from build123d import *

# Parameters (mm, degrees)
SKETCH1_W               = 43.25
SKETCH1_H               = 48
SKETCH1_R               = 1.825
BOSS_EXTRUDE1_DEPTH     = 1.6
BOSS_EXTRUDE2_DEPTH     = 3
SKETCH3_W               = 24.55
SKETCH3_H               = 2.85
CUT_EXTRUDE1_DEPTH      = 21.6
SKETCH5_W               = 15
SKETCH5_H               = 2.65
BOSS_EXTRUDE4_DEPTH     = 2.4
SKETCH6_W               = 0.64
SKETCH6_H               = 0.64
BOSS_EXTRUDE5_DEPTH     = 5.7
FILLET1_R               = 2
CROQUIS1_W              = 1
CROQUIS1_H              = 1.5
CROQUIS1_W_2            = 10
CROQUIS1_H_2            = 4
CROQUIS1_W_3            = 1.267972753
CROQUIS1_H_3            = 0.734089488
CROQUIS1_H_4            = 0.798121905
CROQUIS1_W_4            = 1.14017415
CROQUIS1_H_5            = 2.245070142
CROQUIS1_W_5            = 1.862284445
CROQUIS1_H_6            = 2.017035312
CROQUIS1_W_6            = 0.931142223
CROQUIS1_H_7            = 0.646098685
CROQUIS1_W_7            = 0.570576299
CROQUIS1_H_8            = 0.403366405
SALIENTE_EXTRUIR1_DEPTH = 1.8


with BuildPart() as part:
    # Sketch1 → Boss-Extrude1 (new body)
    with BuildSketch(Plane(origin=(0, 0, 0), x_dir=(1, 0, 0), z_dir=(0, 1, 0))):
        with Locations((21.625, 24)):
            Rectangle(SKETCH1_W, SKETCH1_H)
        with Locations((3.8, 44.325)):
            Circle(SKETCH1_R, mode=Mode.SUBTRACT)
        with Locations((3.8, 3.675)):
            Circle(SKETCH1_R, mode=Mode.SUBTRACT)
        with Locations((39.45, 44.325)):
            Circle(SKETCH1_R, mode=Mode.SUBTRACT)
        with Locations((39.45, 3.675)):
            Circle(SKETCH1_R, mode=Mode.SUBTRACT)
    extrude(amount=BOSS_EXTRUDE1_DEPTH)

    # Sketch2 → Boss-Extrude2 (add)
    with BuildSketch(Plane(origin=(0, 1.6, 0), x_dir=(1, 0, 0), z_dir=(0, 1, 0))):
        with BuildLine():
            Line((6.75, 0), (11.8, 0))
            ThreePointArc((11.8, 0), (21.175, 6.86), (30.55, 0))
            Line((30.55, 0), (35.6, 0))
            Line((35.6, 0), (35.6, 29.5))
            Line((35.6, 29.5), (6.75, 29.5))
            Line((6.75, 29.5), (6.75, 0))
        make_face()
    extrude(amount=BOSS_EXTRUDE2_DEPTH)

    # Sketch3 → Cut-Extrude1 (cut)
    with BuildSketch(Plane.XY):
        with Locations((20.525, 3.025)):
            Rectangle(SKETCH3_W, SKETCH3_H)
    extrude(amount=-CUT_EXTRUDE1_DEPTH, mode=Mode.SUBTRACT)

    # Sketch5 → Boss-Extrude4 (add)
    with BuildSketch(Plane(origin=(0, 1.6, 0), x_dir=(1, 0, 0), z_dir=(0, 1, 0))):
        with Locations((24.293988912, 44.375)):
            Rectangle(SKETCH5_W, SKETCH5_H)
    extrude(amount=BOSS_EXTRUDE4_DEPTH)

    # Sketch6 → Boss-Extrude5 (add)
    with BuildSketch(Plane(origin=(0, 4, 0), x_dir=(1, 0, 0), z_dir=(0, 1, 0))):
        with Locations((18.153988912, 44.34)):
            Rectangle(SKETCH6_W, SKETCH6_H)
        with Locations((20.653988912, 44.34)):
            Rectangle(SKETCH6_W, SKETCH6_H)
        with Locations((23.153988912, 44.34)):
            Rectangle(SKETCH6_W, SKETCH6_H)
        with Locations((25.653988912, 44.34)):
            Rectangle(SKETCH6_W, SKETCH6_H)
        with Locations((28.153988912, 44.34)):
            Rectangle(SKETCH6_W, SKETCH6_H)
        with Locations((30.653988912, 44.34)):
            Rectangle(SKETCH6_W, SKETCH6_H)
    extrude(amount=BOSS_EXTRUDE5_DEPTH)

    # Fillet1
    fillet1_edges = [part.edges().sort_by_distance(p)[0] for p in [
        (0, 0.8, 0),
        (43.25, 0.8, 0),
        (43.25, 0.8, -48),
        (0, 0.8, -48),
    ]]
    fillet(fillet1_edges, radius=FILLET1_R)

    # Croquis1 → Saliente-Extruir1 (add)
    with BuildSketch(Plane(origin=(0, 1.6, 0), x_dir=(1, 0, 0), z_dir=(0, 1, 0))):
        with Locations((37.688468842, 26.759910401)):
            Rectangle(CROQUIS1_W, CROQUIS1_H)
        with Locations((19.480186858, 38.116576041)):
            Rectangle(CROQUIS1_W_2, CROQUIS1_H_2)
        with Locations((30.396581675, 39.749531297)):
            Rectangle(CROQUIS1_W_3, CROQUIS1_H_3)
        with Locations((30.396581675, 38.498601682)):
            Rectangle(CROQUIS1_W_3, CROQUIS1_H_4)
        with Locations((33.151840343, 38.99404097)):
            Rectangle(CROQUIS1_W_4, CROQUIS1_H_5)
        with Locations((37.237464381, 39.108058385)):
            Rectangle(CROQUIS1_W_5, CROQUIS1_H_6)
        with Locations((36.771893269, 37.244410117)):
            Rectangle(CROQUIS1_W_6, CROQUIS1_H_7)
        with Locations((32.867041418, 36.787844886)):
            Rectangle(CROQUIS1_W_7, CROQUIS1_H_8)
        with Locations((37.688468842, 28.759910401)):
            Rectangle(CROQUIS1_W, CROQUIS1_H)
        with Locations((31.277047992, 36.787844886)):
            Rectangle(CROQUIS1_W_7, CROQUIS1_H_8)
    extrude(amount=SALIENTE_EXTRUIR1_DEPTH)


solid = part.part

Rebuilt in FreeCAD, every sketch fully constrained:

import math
import FreeCAD as App
import Part
import Sketcher

V = App.Vector


def edges_at(feature, points):
    """Names of the edges that pass closest to the given points."""
    edges = feature.Shape.Edges
    near = lambda p: min(range(len(edges)), key=lambda i: edges[i].distToShape(Part.Vertex(*p))[0])
    return sorted({f"Edge{near(p) + 1}" for p in points})


def add_polygon(sketch, points):
    """Adds a closed chain of lines whose ends are joined by coincident constraints."""
    first, n = sketch.GeometryCount, len(points)
    for a, b in zip(points, points[1:] + points[:1]):
        sketch.addGeometry(Part.LineSegment(App.Vector(*a, 0), App.Vector(*b, 0)), False)
    for i in range(n):
        sketch.addConstraint(Sketcher.Constraint("Coincident", first + i, 2, first + (i + 1) % n, 1))

doc = App.newDocument("Part")
body = doc.addObject("PartDesign::Body", "Body")

sketch1 = body.newObject("Sketcher::SketchObject", "Sketch")
sketch1.AttachmentSupport = (doc.getObject("XZ_Plane"), [""])
sketch1.MapMode = "FlatFace"
add_polygon(sketch1, [(0, -48), (0, 0), (43.25, 0), (43.25, -48)])
sketch1.addGeometry(Part.Circle(V(3.8, -3.675, 0), V(0, 0, 1), 1.825), False)
sketch1.addGeometry(Part.Circle(V(39.45, -3.675, 0), V(0, 0, 1), 1.825), False)
sketch1.addGeometry(Part.Circle(V(3.8, -44.325, 0), V(0, 0, 1), 1.825), False)
sketch1.addGeometry(Part.Circle(V(39.45, -44.325, 0), V(0, 0, 1), 1.825), False)
sketch1.addConstraint(Sketcher.Constraint("Vertical", 0))
sketch1.addConstraint(Sketcher.Constraint("Horizontal", 1))
sketch1.addConstraint(Sketcher.Constraint("Vertical", 2))
sketch1.addConstraint(Sketcher.Constraint("Horizontal", 3))
sketch1.addConstraint(Sketcher.Constraint("Coincident", 0, 2, -1, 1))
sketch1.addConstraint(Sketcher.Constraint("Equal", 4, 5))
sketch1.addConstraint(Sketcher.Constraint("Equal", 5, 6))
sketch1.addConstraint(Sketcher.Constraint("Equal", 6, 7))
sketch1.addConstraint(Sketcher.Constraint("Horizontal", 4, 3, 5, 3))
sketch1.addConstraint(Sketcher.Constraint("Horizontal", 6, 3, 7, 3))
sketch1.addConstraint(Sketcher.Constraint("Vertical", 4, 3, 6, 3))
sketch1.addConstraint(Sketcher.Constraint("Vertical", 5, 3, 7, 3))
sketch1.addConstraint(Sketcher.Constraint("Diameter", 4, 3.65))
sketch1.addConstraint(Sketcher.Constraint("DistanceY", 0, 1, 0, 2, 48.0))
sketch1.addConstraint(Sketcher.Constraint("DistanceX", 1, 1, 1, 2, 43.25))
sketch1.addConstraint(Sketcher.Constraint("DistanceX", -1, 1, 4, 3, 3.8))
sketch1.addConstraint(Sketcher.Constraint("DistanceX", 5, 3, 1, 2, 3.8))
sketch1.addConstraint(Sketcher.Constraint("DistanceY", 6, 3, 4, 3, 40.65))
sketch1.addConstraint(Sketcher.Constraint("DistanceY", 4, 3, -1, 1, 3.675))
pad1 = body.newObject("PartDesign::Pad", "Pad")
pad1.Profile = sketch1
pad1.Length = 1.6
pad1.Reversed = True

sketch2 = body.newObject("Sketcher::SketchObject", "Sketch001")
sketch2.AttachmentSupport = (doc.getObject("XZ_Plane"), [""])
sketch2.MapMode = "FlatFace"
sketch2.AttachmentOffset = App.Placement(V(0, 0, -1.6), App.Rotation())
sketch2.addGeometry(Part.LineSegment(V(6.75, 0, 0), V(11.8, 0, 0)), False)
sketch2.addGeometry(Part.ArcOfCircle(Part.Circle(V(21.175, 2.976022, 0), V(0, 0, 1), 9.836022), math.radians(-162.388356), math.radians(-17.611644)), False)
sketch2.addGeometry(Part.LineSegment(V(30.55, 0, 0), V(35.6, 0, 0)), False)
sketch2.addGeometry(Part.LineSegment(V(35.6, 0, 0), V(35.6, -29.5, 0)), False)
sketch2.addGeometry(Part.LineSegment(V(35.6, -29.5, 0), V(6.75, -29.5, 0)), False)
sketch2.addGeometry(Part.LineSegment(V(6.75, -29.5, 0), V(6.75, 0, 0)), False)
sketch2.addConstraint(Sketcher.Constraint("Coincident", 0, 2, 1, 1))
sketch2.addConstraint(Sketcher.Constraint("Coincident", 1, 2, 2, 1))
sketch2.addConstraint(Sketcher.Constraint("Coincident", 2, 2, 3, 1))
sketch2.addConstraint(Sketcher.Constraint("Coincident", 3, 2, 4, 1))
sketch2.addConstraint(Sketcher.Constraint("Coincident", 4, 2, 5, 1))
sketch2.addConstraint(Sketcher.Constraint("Coincident", 5, 2, 0, 1))
sketch2.addConstraint(Sketcher.Constraint("Horizontal", 0))
sketch2.addConstraint(Sketcher.Constraint("Horizontal", 2))
sketch2.addConstraint(Sketcher.Constraint("Vertical", 3))
sketch2.addConstraint(Sketcher.Constraint("Horizontal", 4))
sketch2.addConstraint(Sketcher.Constraint("Vertical", 5))
sketch2.addConstraint(Sketcher.Constraint("PointOnObject", 0, 2, -1))
sketch2.addConstraint(Sketcher.Constraint("PointOnObject", 1, 2, -1))
sketch2.addConstraint(Sketcher.Constraint("Equal", 0, 2))
sketch2.addConstraint(Sketcher.Constraint("DistanceY", 3, 2, 3, 1, 29.5))
sketch2.addConstraint(Sketcher.Constraint("DistanceX", 0, 1, 0, 2, 5.05))
sketch2.addConstraint(Sketcher.Constraint("DistanceX", 4, 2, 4, 1, 28.85))
sketch2.addConstraint(Sketcher.Constraint("DistanceX", -1, 1, 0, 2, 11.8))
sketch2.addConstraint(Sketcher.Constraint("Radius", 1, 9.836022))
pad2 = body.newObject("PartDesign::Pad", "Pad001")
pad2.Profile = sketch2
pad2.Length = 3
pad2.Reversed = True

sketch3 = body.newObject("Sketcher::SketchObject", "Sketch002")
sketch3.AttachmentSupport = (doc.getObject("XY_Plane"), [""])
sketch3.MapMode = "FlatFace"
add_polygon(sketch3, [(8.25, 4.45), (8.25, 1.6), (32.8, 1.6), (32.8, 4.45)])
sketch3.addConstraint(Sketcher.Constraint("Vertical", 0))
sketch3.addConstraint(Sketcher.Constraint("Horizontal", 1))
sketch3.addConstraint(Sketcher.Constraint("Vertical", 2))
sketch3.addConstraint(Sketcher.Constraint("Horizontal", 3))
sketch3.addConstraint(Sketcher.Constraint("DistanceX", 1, 1, 1, 2, 24.55))
sketch3.addConstraint(Sketcher.Constraint("DistanceY", 0, 2, 0, 1, 2.85))
sketch3.addConstraint(Sketcher.Constraint("DistanceY", -1, 1, 0, 2, 1.6))
sketch3.addConstraint(Sketcher.Constraint("DistanceX", -1, 1, 1, 2, 32.8))
pocket1 = body.newObject("PartDesign::Pocket", "Pocket")
pocket1.Profile = sketch3
pocket1.Length = 21.6

sketch4 = body.newObject("Sketcher::SketchObject", "Sketch003")
sketch4.AttachmentSupport = (doc.getObject("XZ_Plane"), [""])
sketch4.MapMode = "FlatFace"
sketch4.AttachmentOffset = App.Placement(V(0, 0, -1.6), App.Rotation())
add_polygon(sketch4, [(16.793989, -45.7), (16.793989, -43.05), (31.793989, -43.05), (31.793989, -45.7)])
sketch4.addConstraint(Sketcher.Constraint("Vertical", 0))
sketch4.addConstraint(Sketcher.Constraint("Horizontal", 1))
sketch4.addConstraint(Sketcher.Constraint("Vertical", 2))
sketch4.addConstraint(Sketcher.Constraint("Horizontal", 3))
sketch4.addConstraint(Sketcher.Constraint("DistanceX", 1, 1, 1, 2, 15.0))
sketch4.addConstraint(Sketcher.Constraint("DistanceY", 0, 1, 0, 2, 2.65))
sketch4.addConstraint(Sketcher.Constraint("DistanceY", 2, 2, -1, 1, 45.7))
sketch4.addConstraint(Sketcher.Constraint("DistanceX", -1, 1, 0, 2, 16.793989))
pad3 = body.newObject("PartDesign::Pad", "Pad002")
pad3.Profile = sketch4
pad3.Length = 2.4
pad3.Reversed = True

sketch5 = body.newObject("Sketcher::SketchObject", "Sketch004")
sketch5.AttachmentSupport = (doc.getObject("XZ_Plane"), [""])
sketch5.MapMode = "FlatFace"
sketch5.AttachmentOffset = App.Placement(V(0, 0, -4), App.Rotation())
add_polygon(sketch5, [(17.833989, -44.66), (17.833989, -44.02), (18.473989, -44.02), (18.473989, -44.66)])
add_polygon(sketch5, [(20.333989, -44.66), (20.333989, -44.02), (20.973989, -44.02), (20.973989, -44.66)])
add_polygon(sketch5, [(22.833989, -44.66), (22.833989, -44.02), (23.473989, -44.02), (23.473989, -44.66)])
add_polygon(sketch5, [(25.333989, -44.66), (25.333989, -44.02), (25.973989, -44.02), (25.973989, -44.66)])
add_polygon(sketch5, [(27.833989, -44.66), (27.833989, -44.02), (28.473989, -44.02), (28.473989, -44.66)])
add_polygon(sketch5, [(30.333989, -44.66), (30.333989, -44.02), (30.973989, -44.02), (30.973989, -44.66)])
sketch5.addConstraint(Sketcher.Constraint("Vertical", 0))
sketch5.addConstraint(Sketcher.Constraint("Horizontal", 1))
sketch5.addConstraint(Sketcher.Constraint("Vertical", 2))
sketch5.addConstraint(Sketcher.Constraint("Horizontal", 3))
sketch5.addConstraint(Sketcher.Constraint("Vertical", 4))
sketch5.addConstraint(Sketcher.Constraint("Horizontal", 5))
sketch5.addConstraint(Sketcher.Constraint("Vertical", 6))
sketch5.addConstraint(Sketcher.Constraint("Horizontal", 7))
sketch5.addConstraint(Sketcher.Constraint("Vertical", 8))
sketch5.addConstraint(Sketcher.Constraint("Horizontal", 9))
sketch5.addConstraint(Sketcher.Constraint("Vertical", 10))
sketch5.addConstraint(Sketcher.Constraint("Horizontal", 11))
sketch5.addConstraint(Sketcher.Constraint("Vertical", 12))
sketch5.addConstraint(Sketcher.Constraint("Horizontal", 13))
sketch5.addConstraint(Sketcher.Constraint("Vertical", 14))
sketch5.addConstraint(Sketcher.Constraint("Horizontal", 15))
sketch5.addConstraint(Sketcher.Constraint("Vertical", 16))
sketch5.addConstraint(Sketcher.Constraint("Horizontal", 17))
sketch5.addConstraint(Sketcher.Constraint("Vertical", 18))
sketch5.addConstraint(Sketcher.Constraint("Horizontal", 19))
sketch5.addConstraint(Sketcher.Constraint("Vertical", 20))
sketch5.addConstraint(Sketcher.Constraint("Horizontal", 21))
sketch5.addConstraint(Sketcher.Constraint("Vertical", 22))
sketch5.addConstraint(Sketcher.Constraint("Horizontal", 23))
sketch5.addConstraint(Sketcher.Constraint("Horizontal", 1, 2, 4, 2))
sketch5.addConstraint(Sketcher.Constraint("Horizontal", 3, 2, 6, 2))
sketch5.addConstraint(Sketcher.Constraint("Horizontal", 5, 2, 8, 2))
sketch5.addConstraint(Sketcher.Constraint("Horizontal", 7, 2, 10, 2))
sketch5.addConstraint(Sketcher.Constraint("Horizontal", 9, 2, 12, 2))
sketch5.addConstraint(Sketcher.Constraint("Horizontal", 11, 2, 14, 2))
sketch5.addConstraint(Sketcher.Constraint("Horizontal", 13, 2, 16, 2))
sketch5.addConstraint(Sketcher.Constraint("Horizontal", 15, 2, 18, 2))
sketch5.addConstraint(Sketcher.Constraint("Horizontal", 17, 2, 20, 2))
sketch5.addConstraint(Sketcher.Constraint("Horizontal", 19, 2, 22, 2))
sketch5.addConstraint(Sketcher.Constraint("Equal", 3, 5))
sketch5.addConstraint(Sketcher.Constraint("Equal", 7, 9))
sketch5.addConstraint(Sketcher.Constraint("Equal", 11, 13))
sketch5.addConstraint(Sketcher.Constraint("Equal", 15, 17))
sketch5.addConstraint(Sketcher.Constraint("Equal", 19, 21))
sketch5.addConstraint(Sketcher.Constraint("Equal", 23, 0))
sketch5.addConstraint(Sketcher.Constraint("DistanceX", 1, 1, 1, 2, 0.64))
sketch5.addConstraint(Sketcher.Constraint("DistanceX", 0, 2, 4, 2, 2.5))
sketch5.addConstraint(Sketcher.Constraint("DistanceX", 4, 2, 8, 2, 2.5))
sketch5.addConstraint(Sketcher.Constraint("DistanceX", 8, 2, 12, 2, 2.5))
sketch5.addConstraint(Sketcher.Constraint("DistanceX", 12, 2, 16, 2, 2.5))
sketch5.addConstraint(Sketcher.Constraint("DistanceX", 16, 2, 20, 2, 2.5))
sketch5.addConstraint(Sketcher.Constraint("DistanceY", 0, 2, -1, 1, 44.02))
sketch5.addConstraint(Sketcher.Constraint("DistanceX", -1, 1, 0, 2, 17.833989))
pad4 = body.newObject("PartDesign::Pad", "Pad003")
pad4.Profile = sketch5
pad4.Length = 5.7
pad4.Reversed = True
doc.recompute()

fillet = body.newObject("PartDesign::Fillet", "Fillet")
fillet.Base = (pad4, edges_at(pad4, [
    (0, 0.8, 0),
    (43.25, 0.8, 0),
    (43.25, 0.8, -48),
    (0, 0.8, -48),
]))
fillet.Radius = 2

sketch6 = body.newObject("Sketcher::SketchObject", "Sketch005")
sketch6.AttachmentSupport = (doc.getObject("XZ_Plane"), [""])
sketch6.MapMode = "FlatFace"
sketch6.AttachmentOffset = App.Placement(V(0, 0, -1.6), App.Rotation())
add_polygon(sketch6, [(37.188469, -27.50991), (37.188469, -26.00991), (38.188469, -26.00991), (38.188469, -27.50991)])
add_polygon(sketch6, [(14.480187, -40.116576), (14.480187, -36.116576), (24.480187, -36.116576), (24.480187, -40.116576)])
add_polygon(sketch6, [(29.762595, -40.116576), (29.762595, -39.382487), (31.030568, -39.382487), (31.030568, -40.116576)])
add_polygon(sketch6, [(29.762595, -38.897663), (29.762595, -38.099541), (31.030568, -38.099541), (31.030568, -38.897663)])
add_polygon(sketch6, [(32.581753, -40.116576), (32.581753, -37.871506), (33.721927, -37.871506), (33.721927, -40.116576)])
add_polygon(sketch6, [(36.306322, -40.116576), (36.306322, -38.099541), (38.168607, -38.099541), (38.168607, -40.116576)])
add_polygon(sketch6, [(36.306322, -37.567459), (36.306322, -36.921361), (37.237464, -36.921361), (37.237464, -37.567459)])
add_polygon(sketch6, [(32.581753, -36.989528), (32.581753, -36.586162), (33.15233, -36.586162), (33.15233, -36.989528)])
add_polygon(sketch6, [(37.188469, -29.50991), (37.188469, -28.00991), (38.188469, -28.00991), (38.188469, -29.50991)])
add_polygon(sketch6, [(30.99176, -36.989528), (30.99176, -36.586162), (31.562336, -36.586162), (31.562336, -36.989528)])
sketch6.addConstraint(Sketcher.Constraint("Vertical", 0))
sketch6.addConstraint(Sketcher.Constraint("Horizontal", 1))
sketch6.addConstraint(Sketcher.Constraint("Vertical", 2))
sketch6.addConstraint(Sketcher.Constraint("Horizontal", 3))
sketch6.addConstraint(Sketcher.Constraint("Vertical", 4))
sketch6.addConstraint(Sketcher.Constraint("Horizontal", 5))
sketch6.addConstraint(Sketcher.Constraint("Vertical", 6))
sketch6.addConstraint(Sketcher.Constraint("Horizontal", 7))
sketch6.addConstraint(Sketcher.Constraint("Vertical", 8))
sketch6.addConstraint(Sketcher.Constraint("Horizontal", 9))
sketch6.addConstraint(Sketcher.Constraint("Vertical", 10))
sketch6.addConstraint(Sketcher.Constraint("Horizontal", 11))
sketch6.addConstraint(Sketcher.Constraint("Vertical", 12))
sketch6.addConstraint(Sketcher.Constraint("Horizontal", 13))
sketch6.addConstraint(Sketcher.Constraint("Vertical", 14))
sketch6.addConstraint(Sketcher.Constraint("Horizontal", 15))
sketch6.addConstraint(Sketcher.Constraint("Vertical", 16))
sketch6.addConstraint(Sketcher.Constraint("Horizontal", 17))
sketch6.addConstraint(Sketcher.Constraint("Vertical", 18))
sketch6.addConstraint(Sketcher.Constraint("Horizontal", 19))
sketch6.addConstraint(Sketcher.Constraint("Vertical", 20))
sketch6.addConstraint(Sketcher.Constraint("Horizontal", 21))
sketch6.addConstraint(Sketcher.Constraint("Vertical", 22))
sketch6.addConstraint(Sketcher.Constraint("Horizontal", 23))
sketch6.addConstraint(Sketcher.Constraint("Vertical", 24))
sketch6.addConstraint(Sketcher.Constraint("Horizontal", 25))
sketch6.addConstraint(Sketcher.Constraint("Vertical", 26))
sketch6.addConstraint(Sketcher.Constraint("Horizontal", 27))
sketch6.addConstraint(Sketcher.Constraint("Vertical", 28))
sketch6.addConstraint(Sketcher.Constraint("Horizontal", 29))
sketch6.addConstraint(Sketcher.Constraint("Vertical", 30))
sketch6.addConstraint(Sketcher.Constraint("Horizontal", 31))
sketch6.addConstraint(Sketcher.Constraint("Vertical", 32))
sketch6.addConstraint(Sketcher.Constraint("Horizontal", 33))
sketch6.addConstraint(Sketcher.Constraint("Vertical", 34))
sketch6.addConstraint(Sketcher.Constraint("Horizontal", 35))
sketch6.addConstraint(Sketcher.Constraint("Vertical", 36))
sketch6.addConstraint(Sketcher.Constraint("Horizontal", 37))
sketch6.addConstraint(Sketcher.Constraint("Vertical", 38))
sketch6.addConstraint(Sketcher.Constraint("Horizontal", 39))
sketch6.addConstraint(Sketcher.Constraint("Horizontal", 7, 2, 10, 2))
sketch6.addConstraint(Sketcher.Constraint("Horizontal", 11, 2, 18, 2))
sketch6.addConstraint(Sketcher.Constraint("Horizontal", 13, 2, 20, 2))
sketch6.addConstraint(Sketcher.Constraint("Horizontal", 19, 2, 22, 2))
sketch6.addConstraint(Sketcher.Constraint("Horizontal", 29, 2, 36, 2))
sketch6.addConstraint(Sketcher.Constraint("Horizontal", 31, 2, 38, 2))
sketch6.addConstraint(Sketcher.Constraint("Vertical", 11, 2, 12, 2))
sketch6.addConstraint(Sketcher.Constraint("Vertical", 10, 2, 13, 2))
sketch6.addConstraint(Sketcher.Constraint("Vertical", 23, 2, 24, 2))
sketch6.addConstraint(Sketcher.Constraint("Vertical", 19, 2, 28, 2))
sketch6.addConstraint(Sketcher.Constraint("Vertical", 3, 2, 32, 2))
sketch6.addConstraint(Sketcher.Constraint("Vertical", 2, 2, 33, 2))
sketch6.addConstraint(Sketcher.Constraint("Equal", 31, 37))
sketch6.addConstraint(Sketcher.Constraint("Equal", 2, 32))
sketch6.addConstraint(Sketcher.Constraint("DistanceX", 1, 1, 1, 2, 1.0))
sketch6.addConstraint(Sketcher.Constraint("DistanceX", 5, 1, 5, 2, 10.0))
sketch6.addConstraint(Sketcher.Constraint("DistanceY", 4, 1, 4, 2, 4.0))
sketch6.addConstraint(Sketcher.Constraint("DistanceY", 0, 1, 0, 2, 1.5))
sketch6.addConstraint(Sketcher.Constraint("DistanceY", 32, 2, 0, 2, 2.0))
sketch6.addConstraint(Sketcher.Constraint("DistanceY", 24, 1, 24, 2, 0.646099))
sketch6.addConstraint(Sketcher.Constraint("DistanceY", 8, 1, 8, 2, 0.734089))
sketch6.addConstraint(Sketcher.Constraint("DistanceY", 12, 1, 12, 2, 0.798122))
sketch6.addConstraint(Sketcher.Constraint("DistanceY", 16, 1, 16, 2, 2.24507))
sketch6.addConstraint(Sketcher.Constraint("DistanceX", 9, 2, 3, 2, 6.157901))
sketch6.addConstraint(Sketcher.Constraint("DistanceY", 14, 2, 28, 2, 2.311501))
sketch6.addConstraint(Sketcher.Constraint("DistanceX", 9, 1, 9, 2, 1.267973))
sketch6.addConstraint(Sketcher.Constraint("DistanceX", 17, 1, 17, 2, 1.140174))
sketch6.addConstraint(Sketcher.Constraint("DistanceX", 21, 1, 21, 2, 1.862284))
sketch6.addConstraint(Sketcher.Constraint("DistanceX", 25, 1, 25, 2, 0.931142))
sketch6.addConstraint(Sketcher.Constraint("DistanceX", 29, 1, 29, 2, 0.570576))
sketch6.addConstraint(Sketcher.Constraint("DistanceY", 20, 1, 20, 2, 2.017035))
sketch6.addConstraint(Sketcher.Constraint("DistanceY", 28, 1, 28, 2, 0.403366))
sketch6.addConstraint(Sketcher.Constraint("DistanceX", -1, 1, 0, 2, 37.188469))
sketch6.addConstraint(Sketcher.Constraint("DistanceY", 0, 2, -1, 1, 26.00991))
sketch6.addConstraint(Sketcher.Constraint("DistanceY", 12, 2, -1, 1, 38.099541))
sketch6.addConstraint(Sketcher.Constraint("DistanceY", 24, 2, -1, 1, 36.921361))
sketch6.addConstraint(Sketcher.Constraint("DistanceX", -1, 1, 29, 2, 33.15233))
sketch6.addConstraint(Sketcher.Constraint("DistanceX", -1, 1, 36, 2, 30.99176))
sketch6.addConstraint(Sketcher.Constraint("DistanceX", 4, 2, 3, 2, 22.708282))
sketch6.addConstraint(Sketcher.Constraint("DistanceX", 16, 2, 20, 2, 3.724569))
pad5 = body.newObject("PartDesign::Pad", "Pad004")
pad5.Profile = sketch6
pad5.Length = 1.8
pad5.Reversed = True

doc.recompute()
